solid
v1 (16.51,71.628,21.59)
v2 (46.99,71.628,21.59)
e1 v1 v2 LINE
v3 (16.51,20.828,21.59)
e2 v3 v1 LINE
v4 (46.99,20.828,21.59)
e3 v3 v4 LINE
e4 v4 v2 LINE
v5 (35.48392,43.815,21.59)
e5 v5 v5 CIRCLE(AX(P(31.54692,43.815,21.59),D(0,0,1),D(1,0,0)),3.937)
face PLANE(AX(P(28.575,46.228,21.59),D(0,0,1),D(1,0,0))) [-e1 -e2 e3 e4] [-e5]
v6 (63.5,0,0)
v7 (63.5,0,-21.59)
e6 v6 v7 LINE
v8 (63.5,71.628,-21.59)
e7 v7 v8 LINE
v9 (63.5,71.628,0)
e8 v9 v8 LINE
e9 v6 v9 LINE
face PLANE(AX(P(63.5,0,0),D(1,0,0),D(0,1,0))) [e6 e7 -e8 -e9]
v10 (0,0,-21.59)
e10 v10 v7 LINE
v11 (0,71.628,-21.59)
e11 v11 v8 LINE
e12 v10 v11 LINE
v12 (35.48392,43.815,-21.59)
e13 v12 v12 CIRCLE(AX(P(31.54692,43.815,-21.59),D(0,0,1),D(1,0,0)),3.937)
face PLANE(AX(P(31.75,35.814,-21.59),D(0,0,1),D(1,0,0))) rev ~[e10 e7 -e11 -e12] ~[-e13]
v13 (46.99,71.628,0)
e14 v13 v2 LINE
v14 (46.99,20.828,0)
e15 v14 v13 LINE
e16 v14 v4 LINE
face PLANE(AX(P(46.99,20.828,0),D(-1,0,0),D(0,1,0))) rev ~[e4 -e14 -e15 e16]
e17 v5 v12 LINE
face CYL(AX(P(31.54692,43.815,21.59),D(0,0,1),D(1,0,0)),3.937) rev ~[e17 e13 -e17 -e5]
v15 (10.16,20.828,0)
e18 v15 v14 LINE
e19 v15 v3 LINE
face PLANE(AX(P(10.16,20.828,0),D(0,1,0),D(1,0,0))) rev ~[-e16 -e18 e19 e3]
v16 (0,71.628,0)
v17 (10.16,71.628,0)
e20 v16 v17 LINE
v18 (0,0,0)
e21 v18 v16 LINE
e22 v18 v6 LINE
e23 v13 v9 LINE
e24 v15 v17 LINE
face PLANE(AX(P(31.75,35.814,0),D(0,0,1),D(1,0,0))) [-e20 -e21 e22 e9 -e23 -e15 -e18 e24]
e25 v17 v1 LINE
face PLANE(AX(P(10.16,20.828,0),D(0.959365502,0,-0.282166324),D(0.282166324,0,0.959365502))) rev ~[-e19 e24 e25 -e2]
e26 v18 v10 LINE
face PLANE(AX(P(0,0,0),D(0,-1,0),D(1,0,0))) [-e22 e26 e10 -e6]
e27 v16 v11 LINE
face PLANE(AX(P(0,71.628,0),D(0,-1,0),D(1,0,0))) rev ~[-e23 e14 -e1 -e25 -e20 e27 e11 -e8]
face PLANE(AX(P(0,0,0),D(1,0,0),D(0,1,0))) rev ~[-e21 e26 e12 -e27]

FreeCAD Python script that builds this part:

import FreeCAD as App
import Part
import Sketcher
Q = App.Units.Quantity

doc = App.newDocument("Part")
body = doc.addObject("PartDesign::Body", "Body")

sketch1 = body.newObject("Sketcher::SketchObject", "Sketch")
sketch1.AttachmentSupport = (doc.getObject("XY_Plane"), [""])
sketch1.MapMode = "FlatFace"
sketch1.addGeometry([
    Part.LineSegment(App.Vector(0, 72, 0), App.Vector(0, 0, 0)),
    Part.LineSegment(App.Vector(0, 0, 0), App.Vector(64, 0, 0)),
    Part.LineSegment(App.Vector(64, 0, 0), App.Vector(64, 72, 0)),
    Part.LineSegment(App.Vector(64, 72, 0), App.Vector(0, 72, 0)),
], False)
sketch1.addConstraint([
    Sketcher.Constraint("Coincident", 0, 2, 1, 1),
    Sketcher.Constraint("Coincident", 1, 2, 2, 1),
    Sketcher.Constraint("Coincident", 2, 2, 3, 1),
    Sketcher.Constraint("Coincident", 3, 2, 0, 1),
    Sketcher.Constraint("Vertical", 0),
    Sketcher.Constraint("Horizontal", 1),
    Sketcher.Constraint("Vertical", 2),
    Sketcher.Constraint("Horizontal", 3),
    Sketcher.Constraint("Coincident", 0, 2, -1, 1),
    Sketcher.Constraint("DistanceX", 1, 1, 1, 2, Q("2.5 in")),
    Sketcher.Constraint("DistanceY", 0, 2, 0, 1, Q("2.82 in")),
])
pad1 = body.newObject("PartDesign::Pad", "Pad")
pad1.Profile = sketch1
pad1.Length = Q("0.85 in")
pad1.Reversed = True

sketch2 = body.newObject("Sketcher::SketchObject", "Sketch001")
sketch2.AttachmentSupport = (doc.getObject("XY_Plane"), [""])
sketch2.MapMode = "FlatFace"
sketch2.addGeometry([
    Part.LineSegment(App.Vector(10, 72, 0), App.Vector(10, 21, 0)),
    Part.LineSegment(App.Vector(10, 21, 0), App.Vector(47, 21, 0)),
    Part.LineSegment(App.Vector(47, 21, 0), App.Vector(47, 72, 0)),
    Part.LineSegment(App.Vector(47, 72, 0), App.Vector(10, 72, 0)),
], False)
sketch2.addConstraint([
    Sketcher.Constraint("Coincident", 0, 2, 1, 1),
    Sketcher.Constraint("Coincident", 1, 2, 2, 1),
    Sketcher.Constraint("Coincident", 2, 2, 3, 1),
    Sketcher.Constraint("Coincident", 3, 2, 0, 1),
    Sketcher.Constraint("Vertical", 0),
    Sketcher.Constraint("Horizontal", 1),
    Sketcher.Constraint("Vertical", 2),
    Sketcher.Constraint("Horizontal", 3),
    Sketcher.Constraint("DistanceY", 0, 2, 0, 1, Q("2 in")),
    Sketcher.Constraint("DistanceX", 1, 1, 1, 2, Q("1.45 in")),
    Sketcher.Constraint("DistanceX", -1, 1, 0, 2, Q("0.4 in")),
    Sketcher.Constraint("DistanceY", -1, 1, 0, 2, Q("0.82 in")),
])
pad2 = body.newObject("PartDesign::Pad", "Pad001")
pad2.Profile = sketch2
pad2.Length = Q("0.85 in")

sketch3 = body.newObject("Sketcher::SketchObject", "Sketch002")
sketch3.AttachmentSupport = (doc.getObject("XZ_Plane"), [""])
sketch3.MapMode = "FlatFace"
sketch3.AttachmentOffset = App.Placement(App.Vector(0, 0, -0.82 * 25.4), App.Rotation())
sketch3.addGeometry([
    Part.LineSegment(App.Vector(10, 0, 0), App.Vector(17, 22, 0)),
    Part.LineSegment(App.Vector(17, 22, 0), App.Vector(10, 22, 0)),
    Part.LineSegment(App.Vector(10, 22, 0), App.Vector(10, 0, 0)),
], False)
sketch3.addConstraint([
    Sketcher.Constraint("Coincident", 0, 2, 1, 1),
    Sketcher.Constraint("Coincident", 1, 2, 2, 1),
    Sketcher.Constraint("Coincident", 2, 2, 0, 1),
    Sketcher.Constraint("Horizontal", 1),
    Sketcher.Constraint("Vertical", 2),
    Sketcher.Constraint("PointOnObject", 2, 2, -1),
    Sketcher.Constraint("DistanceX", 1, 2, 1, 1, Q("0.25 in")),
    Sketcher.Constraint("DistanceY", 2, 2, 2, 1, Q("0.85 in")),
    Sketcher.Constraint("DistanceX", -1, 1, 1, 2, Q("0.4 in")),
])
pocket1 = body.newObject("PartDesign::Pocket", "Pocket")
pocket1.Profile = sketch3
pocket1.Length = Q("2 in")

sketch4 = body.newObject("Sketcher::SketchObject", "Sketch003")
sketch4.AttachmentSupport = (doc.getObject("XY_Plane"), [""])
sketch4.MapMode = "FlatFace"
sketch4.AttachmentOffset = App.Placement(App.Vector(0, 0, 0.85 * 25.4), App.Rotation())
sketch4.addGeometry(Part.Circle(App.Vector(31.5, 43.8, 0), App.Vector(0, 0, 1), 3.9), False)
sketch4.addConstraint([
    Sketcher.Constraint("Diameter", 0, Q("0.31 in")),
    Sketcher.Constraint("DistanceY", -1, 1, 0, 3, Q("1.725 in")),
    Sketcher.Constraint("DistanceX", -1, 1, 0, 3, 31.54692),
])
pocket2 = body.newObject("PartDesign::Pocket", "Pocket001")
pocket2.Profile = sketch4
pocket2.Type = "ThroughAll"

doc.recompute()
